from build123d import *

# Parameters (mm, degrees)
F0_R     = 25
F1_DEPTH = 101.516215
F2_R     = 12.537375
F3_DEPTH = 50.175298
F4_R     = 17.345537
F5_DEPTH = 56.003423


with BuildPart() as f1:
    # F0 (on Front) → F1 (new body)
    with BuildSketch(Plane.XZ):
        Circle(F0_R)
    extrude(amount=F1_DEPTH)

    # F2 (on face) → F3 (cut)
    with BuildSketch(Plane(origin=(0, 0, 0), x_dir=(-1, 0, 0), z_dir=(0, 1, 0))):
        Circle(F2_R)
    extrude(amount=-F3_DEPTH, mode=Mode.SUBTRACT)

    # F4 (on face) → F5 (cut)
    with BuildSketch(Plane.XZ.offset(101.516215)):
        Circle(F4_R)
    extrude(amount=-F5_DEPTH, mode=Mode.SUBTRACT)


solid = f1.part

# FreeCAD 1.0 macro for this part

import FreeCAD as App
import Part
import Sketcher
from FreeCAD import Vector
Q = App.Units.Quantity

doc = App.newDocument("Part")
body = doc.addObject("PartDesign::Body", "Body")

# Sketch on XZ plane
sketch1 = body.newObject("Sketcher::SketchObject", "Sketch")
sketch1.AttachmentSupport = (doc.getObject("XZ_Plane"), [""])
sketch1.MapMode = "FlatFace"
sketch1.addGeometry(Part.Circle(Vector(0, 0, 0), Vector(0, 0, 1), 25), False)
sketch1.addConstraint([
    Sketcher.Constraint("Coincident", 0, 3, -1, 1),
    Sketcher.Constraint("Diameter", 0, Q("50 mm")),
])
pad1 = body.newObject("PartDesign::Pad", "Pad")
pad1.Profile = sketch1
pad1.Length = 101.516215

# Sketch on XZ plane
sketch2 = body.newObject("Sketcher::SketchObject", "Sketch001")
sketch2.AttachmentSupport = (doc.getObject("XZ_Plane"), [""])
sketch2.MapMode = "FlatFace"
sketch2.addGeometry(Part.Circle(Vector(0, 0, 0), Vector(0, 0, 1), 13), False)
sketch2.addConstraint([
    Sketcher.Constraint("Coincident", 0, 3, -1, 1),
    Sketcher.Constraint("Diameter", 0, Q("25.07475 mm")),
])
pocket1 = body.newObject("PartDesign::Pocket", "Pocket")
pocket1.Profile = sketch2
pocket1.Length = 50.175298
pocket1.Reversed = True

# Sketch on XZ plane
sketch3 = body.newObject("Sketcher::SketchObject", "Sketch002")
sketch3.AttachmentSupport = (doc.getObject("XZ_Plane"), [""])
sketch3.MapMode = "FlatFace"
sketch3.AttachmentOffset = App.Placement(Vector(0, 0, 101.516215), App.Rotation())
sketch3.addGeometry(Part.Circle(Vector(0, 0, 0), Vector(0, 0, 1), 17), False)
sketch3.addConstraint([
    Sketcher.Constraint("Coincident", 0, 3, -1, 1),
    Sketcher.Constraint("Diameter", 0, Q("34.691074 mm")),
])
pocket2 = body.newObject("PartDesign::Pocket", "Pocket001")
pocket2.Profile = sketch3
pocket2.Length = 56.003423

doc.recompute()
